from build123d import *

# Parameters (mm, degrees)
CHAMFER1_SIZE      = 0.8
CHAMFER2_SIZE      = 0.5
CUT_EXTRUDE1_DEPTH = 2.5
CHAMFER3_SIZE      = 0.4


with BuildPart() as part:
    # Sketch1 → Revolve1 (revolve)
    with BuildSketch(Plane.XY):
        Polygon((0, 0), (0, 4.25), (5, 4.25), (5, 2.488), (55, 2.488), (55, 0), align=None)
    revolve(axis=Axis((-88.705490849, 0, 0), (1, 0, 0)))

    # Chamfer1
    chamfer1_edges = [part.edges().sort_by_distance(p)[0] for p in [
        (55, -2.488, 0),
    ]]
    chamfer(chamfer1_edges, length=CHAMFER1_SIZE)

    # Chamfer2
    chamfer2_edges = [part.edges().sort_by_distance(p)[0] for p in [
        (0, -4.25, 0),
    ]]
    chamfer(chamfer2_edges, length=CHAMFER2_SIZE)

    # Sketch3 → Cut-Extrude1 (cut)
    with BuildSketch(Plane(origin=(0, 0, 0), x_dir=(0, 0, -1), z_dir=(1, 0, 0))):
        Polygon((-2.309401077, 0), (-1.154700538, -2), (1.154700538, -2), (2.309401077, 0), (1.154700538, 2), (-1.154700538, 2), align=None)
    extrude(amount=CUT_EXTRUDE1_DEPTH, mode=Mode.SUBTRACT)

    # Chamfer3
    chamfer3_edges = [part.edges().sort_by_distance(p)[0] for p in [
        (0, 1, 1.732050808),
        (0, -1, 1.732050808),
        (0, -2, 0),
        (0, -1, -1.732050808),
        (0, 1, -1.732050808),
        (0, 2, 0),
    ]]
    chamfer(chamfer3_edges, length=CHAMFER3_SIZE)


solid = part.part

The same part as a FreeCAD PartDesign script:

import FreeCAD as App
import Part
import Sketcher
from FreeCAD import Vector
Q = App.Units.Quantity


def edges_at(feature, points):
    """Names of the edges that pass closest to the given points."""
    edges = feature.Shape.Edges
    near = lambda p: min(range(len(edges)), key=lambda i: edges[i].distToShape(Part.Vertex(*p))[0])
    return sorted({f"Edge{near(p) + 1}" for p in points})

doc = App.newDocument("Part")
body = doc.addObject("PartDesign::Body", "Body")

sketch1 = body.newObject("Sketcher::SketchObject", "Sketch")
sketch1.AttachmentSupport = (doc.getObject("XY_Plane"), [""])
sketch1.MapMode = "FlatFace"
sketch1.addGeometry([
    Part.LineSegment(Vector(0, 4.2, 0), Vector(0, 0, 0)),
    Part.LineSegment(Vector(0, 0, 0), Vector(55, 0, 0)),
    Part.LineSegment(Vector(55, 0, 0), Vector(55, 2.5, 0)),
    Part.LineSegment(Vector(55, 2.5, 0), Vector(5, 2.5, 0)),
    Part.LineSegment(Vector(5, 2.5, 0), Vector(5, 4.2, 0)),
    Part.LineSegment(Vector(5, 4.2, 0), Vector(0, 4.2, 0)),
], False)
sketch1.addConstraint([
    Sketcher.Constraint("Coincident", 0, 2, 1, 1),
    Sketcher.Constraint("Coincident", 1, 2, 2, 1),
    Sketcher.Constraint("Coincident", 2, 2, 3, 1),
    Sketcher.Constraint("Coincident", 3, 2, 4, 1),
    Sketcher.Constraint("Coincident", 4, 2, 5, 1),
    Sketcher.Constraint("Coincident", 5, 2, 0, 1),
    Sketcher.Constraint("Vertical", 0),
    Sketcher.Constraint("Horizontal", 1),
    Sketcher.Constraint("Vertical", 2),
    Sketcher.Constraint("Horizontal", 3),
    Sketcher.Constraint("Vertical", 4),
    Sketcher.Constraint("Horizontal", 5),
    Sketcher.Constraint("Coincident", 0, 2, -1, 1),
    Sketcher.Constraint("DistanceX", 1, 1, 1, 2, Q("55 mm")),
    Sketcher.Constraint("DistanceX", 3, 2, 3, 1, Q("50 mm")),
    Sketcher.Constraint("DistanceY", 0, 2, 0, 1, Q("4.25 mm")),
    Sketcher.Constraint("DistanceY", 2, 1, 2, 2, Q("2.488 mm")),
])
revolution = body.newObject("PartDesign::Revolution", "Revolution")
revolution.Profile = sketch1
revolution.ReferenceAxis = (sketch1, ["H_Axis"])
revolution.Angle = 360
doc.recompute()

chamfer = body.newObject("PartDesign::Chamfer", "Chamfer")
chamfer.Base = (revolution, edges_at(revolution, [(55, -2.488, 0)]))
chamfer.Size = 0.8
doc.recompute()

chamfer2 = body.newObject("PartDesign::Chamfer", "Chamfer001")
chamfer2.Base = (chamfer, edges_at(chamfer, [(0, -4.25, 0)]))
chamfer2.Size = 0.5

sketch2 = body.newObject("Sketcher::SketchObject", "Sketch001")
sketch2.AttachmentSupport = (doc.getObject("YZ_Plane"), [""])
sketch2.MapMode = "FlatFace"
sketch2.addGeometry([
    Part.LineSegment(Vector(0, 2.3, 0), Vector(-2, 1.2, 0)),
    Part.LineSegment(Vector(-2, 1.2, 0), Vector(-2, -1.2, 0)),
    Part.LineSegment(Vector(-2, -1.2, 0), Vector(0, -2.3, 0)),
    Part.LineSegment(Vector(0, -2.3, 0), Vector(2, -1.2, 0)),
    Part.LineSegment(Vector(2, -1.2, 0), Vector(2, 1.2, 0)),
    Part.LineSegment(Vector(2, 1.2, 0), Vector(0, 2.3, 0)),
], False)
sketch2.addConstraint([
    Sketcher.Constraint("Coincident", 0, 2, 1, 1),
    Sketcher.Constraint("Coincident", 1, 2, 2, 1),
    Sketcher.Constraint("Coincident", 2, 2, 3, 1),
    Sketcher.Constraint("Coincident", 3, 2, 4, 1),
    Sketcher.Constraint("Coincident", 4, 2, 5, 1),
    Sketcher.Constraint("Coincident", 5, 2, 0, 1),
    Sketcher.Constraint("Vertical", 1),
    Sketcher.Constraint("Vertical", 4),
    Sketcher.Constraint("Symmetric", 0, 2, 3, 2, -1, 1),
    Sketcher.Constraint("Symmetric", 2, 2, 5, 2, -1, 1),
    Sketcher.Constraint("PointOnObject", 2, 2, -2),
    Sketcher.Constraint("Parallel", 2, 5),
    Sketcher.Constraint("Horizontal", 1, 2, 3, 2),
    Sketcher.Constraint("Angle", 0, Q("-150 deg")),
    Sketcher.Constraint("DistanceX", 0, 2, -1, 1, Q("2 mm")),
    Sketcher.Constraint("DistanceY", 1, 2, 1, 1, Q("2.309401 mm")),
])
pocket1 = body.newObject("PartDesign::Pocket", "Pocket")
pocket1.Profile = sketch2
pocket1.Length = 2.5
pocket1.Reversed = True
doc.recompute()

chamfer3 = body.newObject("PartDesign::Chamfer", "Chamfer002")
chamfer3.Base = (pocket1, edges_at(pocket1, [
    (0, 1, 1.732),
    (0, -1, 1.732),
    (0, -2, 0),
    (0, -1, -1.732),
    (0, 1, -1.732),
    (0, 2, 0),
]))
chamfer3.Size = 0.4

doc.recompute()
